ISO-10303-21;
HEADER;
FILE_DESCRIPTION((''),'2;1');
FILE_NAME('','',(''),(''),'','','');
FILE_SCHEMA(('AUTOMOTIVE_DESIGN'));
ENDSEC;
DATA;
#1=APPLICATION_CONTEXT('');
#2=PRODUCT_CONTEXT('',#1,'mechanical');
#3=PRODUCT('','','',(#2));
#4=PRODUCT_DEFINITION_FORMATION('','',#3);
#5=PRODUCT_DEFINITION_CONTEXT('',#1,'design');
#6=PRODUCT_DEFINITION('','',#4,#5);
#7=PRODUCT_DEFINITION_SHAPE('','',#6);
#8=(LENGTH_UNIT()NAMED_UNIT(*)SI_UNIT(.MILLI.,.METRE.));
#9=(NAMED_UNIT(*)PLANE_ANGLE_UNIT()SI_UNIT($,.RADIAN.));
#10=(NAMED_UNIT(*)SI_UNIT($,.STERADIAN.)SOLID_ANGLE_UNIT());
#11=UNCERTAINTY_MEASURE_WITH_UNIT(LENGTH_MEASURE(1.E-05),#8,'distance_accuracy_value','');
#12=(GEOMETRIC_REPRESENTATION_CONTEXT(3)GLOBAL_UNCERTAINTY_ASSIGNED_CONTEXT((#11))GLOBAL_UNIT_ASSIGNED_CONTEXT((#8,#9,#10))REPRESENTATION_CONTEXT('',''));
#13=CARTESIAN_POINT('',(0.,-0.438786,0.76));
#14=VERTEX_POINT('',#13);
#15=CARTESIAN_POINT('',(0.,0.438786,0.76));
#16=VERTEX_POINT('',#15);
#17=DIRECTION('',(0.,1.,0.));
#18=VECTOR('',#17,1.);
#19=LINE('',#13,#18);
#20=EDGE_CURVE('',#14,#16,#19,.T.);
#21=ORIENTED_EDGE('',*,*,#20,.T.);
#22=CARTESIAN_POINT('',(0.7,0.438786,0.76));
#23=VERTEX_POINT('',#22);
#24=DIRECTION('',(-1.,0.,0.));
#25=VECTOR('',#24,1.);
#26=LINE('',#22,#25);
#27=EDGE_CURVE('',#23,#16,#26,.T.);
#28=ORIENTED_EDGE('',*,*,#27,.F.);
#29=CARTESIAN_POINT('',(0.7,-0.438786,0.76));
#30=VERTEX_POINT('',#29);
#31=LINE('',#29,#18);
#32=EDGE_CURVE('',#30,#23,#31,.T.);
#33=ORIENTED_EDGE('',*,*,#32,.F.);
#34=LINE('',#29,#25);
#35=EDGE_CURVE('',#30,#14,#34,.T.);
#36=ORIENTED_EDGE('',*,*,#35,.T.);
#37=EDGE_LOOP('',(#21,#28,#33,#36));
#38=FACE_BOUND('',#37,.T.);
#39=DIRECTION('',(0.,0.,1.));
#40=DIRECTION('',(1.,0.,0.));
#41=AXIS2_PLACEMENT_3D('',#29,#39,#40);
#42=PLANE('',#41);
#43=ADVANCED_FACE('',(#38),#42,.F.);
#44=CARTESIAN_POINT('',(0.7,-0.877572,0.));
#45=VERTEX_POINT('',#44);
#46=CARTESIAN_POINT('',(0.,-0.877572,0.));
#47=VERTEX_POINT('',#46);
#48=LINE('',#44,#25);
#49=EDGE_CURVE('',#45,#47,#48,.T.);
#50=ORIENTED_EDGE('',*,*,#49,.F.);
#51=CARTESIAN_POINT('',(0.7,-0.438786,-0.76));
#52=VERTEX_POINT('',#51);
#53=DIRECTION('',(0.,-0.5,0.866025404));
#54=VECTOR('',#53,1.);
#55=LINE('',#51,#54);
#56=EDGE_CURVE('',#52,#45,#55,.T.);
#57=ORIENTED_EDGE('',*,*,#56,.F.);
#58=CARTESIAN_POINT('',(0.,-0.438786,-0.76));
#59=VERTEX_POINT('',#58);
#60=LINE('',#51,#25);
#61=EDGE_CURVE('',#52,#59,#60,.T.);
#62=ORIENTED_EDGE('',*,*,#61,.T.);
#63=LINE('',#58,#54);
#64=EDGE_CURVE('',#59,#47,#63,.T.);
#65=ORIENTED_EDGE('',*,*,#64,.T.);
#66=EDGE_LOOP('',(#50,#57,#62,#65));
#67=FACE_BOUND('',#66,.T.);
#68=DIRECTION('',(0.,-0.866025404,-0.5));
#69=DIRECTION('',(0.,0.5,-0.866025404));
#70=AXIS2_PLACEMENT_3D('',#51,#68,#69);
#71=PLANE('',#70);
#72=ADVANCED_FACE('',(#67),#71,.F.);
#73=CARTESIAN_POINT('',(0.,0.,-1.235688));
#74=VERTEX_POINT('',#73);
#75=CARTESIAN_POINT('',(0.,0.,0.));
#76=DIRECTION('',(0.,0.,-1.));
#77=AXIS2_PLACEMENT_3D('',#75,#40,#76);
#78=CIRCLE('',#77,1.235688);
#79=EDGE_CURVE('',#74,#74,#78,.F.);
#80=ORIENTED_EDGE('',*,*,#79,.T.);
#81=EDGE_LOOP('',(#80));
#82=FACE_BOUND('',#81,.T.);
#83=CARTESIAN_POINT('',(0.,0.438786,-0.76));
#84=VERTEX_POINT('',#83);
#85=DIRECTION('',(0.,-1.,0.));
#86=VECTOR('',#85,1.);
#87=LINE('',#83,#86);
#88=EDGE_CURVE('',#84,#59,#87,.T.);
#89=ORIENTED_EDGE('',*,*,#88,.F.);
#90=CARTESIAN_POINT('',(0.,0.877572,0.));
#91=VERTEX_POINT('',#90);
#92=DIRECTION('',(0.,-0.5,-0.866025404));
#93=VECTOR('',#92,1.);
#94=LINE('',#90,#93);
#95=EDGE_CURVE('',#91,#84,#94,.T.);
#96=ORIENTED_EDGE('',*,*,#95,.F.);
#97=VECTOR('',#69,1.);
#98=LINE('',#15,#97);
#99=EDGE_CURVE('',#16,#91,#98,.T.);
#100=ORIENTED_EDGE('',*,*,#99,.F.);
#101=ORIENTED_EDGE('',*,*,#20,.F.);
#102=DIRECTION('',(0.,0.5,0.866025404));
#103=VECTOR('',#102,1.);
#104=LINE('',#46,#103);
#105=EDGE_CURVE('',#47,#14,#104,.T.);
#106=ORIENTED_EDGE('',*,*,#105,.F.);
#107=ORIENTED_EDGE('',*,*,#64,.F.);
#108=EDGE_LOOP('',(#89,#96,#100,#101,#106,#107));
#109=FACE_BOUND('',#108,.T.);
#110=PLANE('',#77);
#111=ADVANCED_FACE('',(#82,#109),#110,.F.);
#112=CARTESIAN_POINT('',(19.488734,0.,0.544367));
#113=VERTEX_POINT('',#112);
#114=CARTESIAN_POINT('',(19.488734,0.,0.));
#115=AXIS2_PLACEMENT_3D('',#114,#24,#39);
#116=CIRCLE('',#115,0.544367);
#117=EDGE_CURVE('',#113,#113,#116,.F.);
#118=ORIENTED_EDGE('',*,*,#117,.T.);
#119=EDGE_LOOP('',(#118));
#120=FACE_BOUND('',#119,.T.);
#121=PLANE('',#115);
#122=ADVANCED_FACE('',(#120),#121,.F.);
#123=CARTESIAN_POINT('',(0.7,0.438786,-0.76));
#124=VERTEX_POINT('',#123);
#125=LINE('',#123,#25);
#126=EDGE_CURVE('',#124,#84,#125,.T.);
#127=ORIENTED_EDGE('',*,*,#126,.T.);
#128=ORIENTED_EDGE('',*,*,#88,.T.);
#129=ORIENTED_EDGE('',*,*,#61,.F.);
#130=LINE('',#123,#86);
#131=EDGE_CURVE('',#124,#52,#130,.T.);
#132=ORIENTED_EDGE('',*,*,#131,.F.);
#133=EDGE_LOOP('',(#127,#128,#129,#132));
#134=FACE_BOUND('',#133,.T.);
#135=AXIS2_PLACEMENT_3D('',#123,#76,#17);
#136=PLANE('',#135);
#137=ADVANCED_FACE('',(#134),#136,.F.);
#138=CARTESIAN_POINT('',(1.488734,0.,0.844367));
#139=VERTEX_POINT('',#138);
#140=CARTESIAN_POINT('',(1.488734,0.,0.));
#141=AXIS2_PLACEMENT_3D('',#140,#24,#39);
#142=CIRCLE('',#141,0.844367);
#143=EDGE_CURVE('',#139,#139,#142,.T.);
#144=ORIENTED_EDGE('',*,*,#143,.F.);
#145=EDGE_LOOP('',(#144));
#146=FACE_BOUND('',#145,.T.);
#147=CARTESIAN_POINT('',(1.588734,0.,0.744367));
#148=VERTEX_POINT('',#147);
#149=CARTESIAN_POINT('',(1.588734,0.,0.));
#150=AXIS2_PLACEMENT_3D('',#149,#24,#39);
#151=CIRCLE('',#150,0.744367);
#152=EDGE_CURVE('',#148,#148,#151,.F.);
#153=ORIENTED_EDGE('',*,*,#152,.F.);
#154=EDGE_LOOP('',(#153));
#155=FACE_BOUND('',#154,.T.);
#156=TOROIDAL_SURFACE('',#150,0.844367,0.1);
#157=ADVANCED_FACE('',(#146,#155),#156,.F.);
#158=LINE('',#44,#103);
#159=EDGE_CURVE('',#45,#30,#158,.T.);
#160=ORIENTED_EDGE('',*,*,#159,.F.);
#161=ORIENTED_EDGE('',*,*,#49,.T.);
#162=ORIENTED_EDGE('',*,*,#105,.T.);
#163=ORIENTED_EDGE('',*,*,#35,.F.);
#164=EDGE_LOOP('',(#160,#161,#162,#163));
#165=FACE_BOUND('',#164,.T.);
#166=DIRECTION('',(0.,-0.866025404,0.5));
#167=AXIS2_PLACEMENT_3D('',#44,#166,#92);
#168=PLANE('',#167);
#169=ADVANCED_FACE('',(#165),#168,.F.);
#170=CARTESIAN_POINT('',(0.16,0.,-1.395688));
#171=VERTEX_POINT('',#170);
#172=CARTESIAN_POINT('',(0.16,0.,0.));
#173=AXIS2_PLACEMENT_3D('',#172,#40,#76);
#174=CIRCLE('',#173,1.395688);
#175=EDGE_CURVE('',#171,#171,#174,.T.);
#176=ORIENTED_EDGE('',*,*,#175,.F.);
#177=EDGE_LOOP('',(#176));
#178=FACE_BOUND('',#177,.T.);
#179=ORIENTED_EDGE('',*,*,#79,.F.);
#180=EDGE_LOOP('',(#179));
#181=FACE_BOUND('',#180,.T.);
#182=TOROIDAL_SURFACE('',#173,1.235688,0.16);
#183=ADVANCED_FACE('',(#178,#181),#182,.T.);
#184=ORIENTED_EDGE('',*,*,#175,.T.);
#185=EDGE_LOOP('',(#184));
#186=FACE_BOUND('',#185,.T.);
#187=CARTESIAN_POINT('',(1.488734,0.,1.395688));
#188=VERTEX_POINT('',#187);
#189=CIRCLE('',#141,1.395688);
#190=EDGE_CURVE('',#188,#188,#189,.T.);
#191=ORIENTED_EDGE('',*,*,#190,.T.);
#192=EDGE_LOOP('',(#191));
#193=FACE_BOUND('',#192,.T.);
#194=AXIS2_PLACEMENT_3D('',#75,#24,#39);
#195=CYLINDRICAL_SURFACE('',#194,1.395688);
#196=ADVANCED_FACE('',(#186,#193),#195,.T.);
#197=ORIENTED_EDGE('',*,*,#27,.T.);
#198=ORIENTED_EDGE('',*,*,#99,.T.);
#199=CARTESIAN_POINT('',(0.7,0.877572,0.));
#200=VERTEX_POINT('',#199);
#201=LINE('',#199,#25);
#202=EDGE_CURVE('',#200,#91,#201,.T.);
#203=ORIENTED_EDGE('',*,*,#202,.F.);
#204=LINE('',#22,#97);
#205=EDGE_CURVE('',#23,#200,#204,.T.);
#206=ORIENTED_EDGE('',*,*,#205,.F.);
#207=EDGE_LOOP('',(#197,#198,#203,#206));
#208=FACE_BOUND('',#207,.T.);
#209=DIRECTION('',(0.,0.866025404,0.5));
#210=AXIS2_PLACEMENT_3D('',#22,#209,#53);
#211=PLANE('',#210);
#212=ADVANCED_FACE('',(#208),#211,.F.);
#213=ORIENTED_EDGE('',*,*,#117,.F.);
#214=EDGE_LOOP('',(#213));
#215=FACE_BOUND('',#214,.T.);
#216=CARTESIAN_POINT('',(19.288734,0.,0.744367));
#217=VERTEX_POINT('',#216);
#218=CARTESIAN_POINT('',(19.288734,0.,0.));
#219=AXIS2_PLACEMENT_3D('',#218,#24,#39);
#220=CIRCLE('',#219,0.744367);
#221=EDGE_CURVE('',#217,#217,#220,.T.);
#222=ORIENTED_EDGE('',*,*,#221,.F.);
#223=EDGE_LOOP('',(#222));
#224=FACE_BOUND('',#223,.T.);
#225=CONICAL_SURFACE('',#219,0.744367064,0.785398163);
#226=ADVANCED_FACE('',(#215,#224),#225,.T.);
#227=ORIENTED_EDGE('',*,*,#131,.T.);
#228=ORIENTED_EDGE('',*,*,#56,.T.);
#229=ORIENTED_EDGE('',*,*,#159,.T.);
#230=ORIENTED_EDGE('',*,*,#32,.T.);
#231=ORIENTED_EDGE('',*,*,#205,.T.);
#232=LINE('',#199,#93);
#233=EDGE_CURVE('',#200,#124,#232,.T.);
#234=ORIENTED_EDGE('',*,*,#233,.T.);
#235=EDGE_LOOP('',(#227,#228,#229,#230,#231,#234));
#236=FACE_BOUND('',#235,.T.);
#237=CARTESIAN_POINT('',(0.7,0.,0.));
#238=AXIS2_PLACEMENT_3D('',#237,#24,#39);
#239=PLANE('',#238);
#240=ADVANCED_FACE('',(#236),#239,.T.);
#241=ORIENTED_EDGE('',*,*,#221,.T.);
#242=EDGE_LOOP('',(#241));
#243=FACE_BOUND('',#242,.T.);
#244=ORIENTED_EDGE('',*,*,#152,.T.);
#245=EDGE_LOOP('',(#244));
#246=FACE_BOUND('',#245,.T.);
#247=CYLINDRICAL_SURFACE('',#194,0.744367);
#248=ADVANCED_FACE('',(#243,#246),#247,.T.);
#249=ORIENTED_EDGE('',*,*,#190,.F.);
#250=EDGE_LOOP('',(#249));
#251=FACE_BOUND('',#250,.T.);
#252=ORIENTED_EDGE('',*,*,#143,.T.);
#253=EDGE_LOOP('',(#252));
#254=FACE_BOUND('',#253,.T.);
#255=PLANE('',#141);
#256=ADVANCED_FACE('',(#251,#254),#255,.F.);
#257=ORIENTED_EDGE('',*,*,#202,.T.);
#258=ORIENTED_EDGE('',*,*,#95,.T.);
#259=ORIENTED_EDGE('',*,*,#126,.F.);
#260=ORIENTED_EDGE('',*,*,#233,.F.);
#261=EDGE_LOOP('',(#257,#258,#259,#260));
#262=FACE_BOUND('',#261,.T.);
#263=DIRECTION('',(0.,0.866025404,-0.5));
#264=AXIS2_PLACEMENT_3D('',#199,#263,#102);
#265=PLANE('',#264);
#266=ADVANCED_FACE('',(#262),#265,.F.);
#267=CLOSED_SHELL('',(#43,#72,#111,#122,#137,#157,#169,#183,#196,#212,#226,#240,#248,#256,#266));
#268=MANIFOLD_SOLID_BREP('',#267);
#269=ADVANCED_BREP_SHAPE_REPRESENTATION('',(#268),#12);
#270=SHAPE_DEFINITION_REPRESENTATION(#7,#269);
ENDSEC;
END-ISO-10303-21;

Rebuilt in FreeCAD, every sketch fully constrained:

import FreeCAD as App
import Part
import Sketcher

V = App.Vector
Q = App.Units.Quantity


def edges_at(feature, points):
    """Names of the edges that pass closest to the given points."""
    edges = feature.Shape.Edges
    near = lambda p: min(range(len(edges)), key=lambda i: edges[i].distToShape(Part.Vertex(*p))[0])
    return sorted({f"Edge{near(p) + 1}" for p in points})


def add_polygon(sketch, points):
    """Adds a closed chain of lines whose ends are joined by coincident constraints."""
    first, n = sketch.GeometryCount, len(points)
    for a, b in zip(points, points[1:] + points[:1]):
        sketch.addGeometry(Part.LineSegment(App.Vector(*a, 0), App.Vector(*b, 0)), False)
    for i in range(n):
        sketch.addConstraint(Sketcher.Constraint("Coincident", first + i, 2, first + (i + 1) % n, 1))

doc = App.newDocument("Part")
params = doc.addObject("Spreadsheet::Sheet", "Params")
for row, (alias, value) in enumerate([
    ("sketch1_width", "18 mm"),
    ("revolution_angle", "360 deg"),
    ("fillet_radius", "0.1 mm"),
    ("fillet2_radius", "0.16 mm"),
    ("chamfer_size", "0.2 mm"),
    ("pocket1_length", "0.7 mm"),
], start=1):
    params.set(f"A{row}", alias)
    params.set(f"B{row}", "=" + value)
    params.setAlias(f"B{row}", alias)

body = doc.addObject("PartDesign::Body", "Body")

# Sketch on XY plane
sketch1 = body.newObject("Sketcher::SketchObject", "Sketch")
sketch1.AttachmentSupport = (doc.getObject("XY_Plane"), [""])
sketch1.MapMode = "FlatFace"
add_polygon(sketch1, [(0, 1.4), (0, 0), (19.5, 0), (19.5, 0.7), (1.5, 0.7), (1.5, 1.4)])  # lines 0-5
sketch1.addConstraint(Sketcher.Constraint("Vertical", 0))
sketch1.addConstraint(Sketcher.Constraint("Horizontal", 1))
sketch1.addConstraint(Sketcher.Constraint("Vertical", 2))
sketch1.addConstraint(Sketcher.Constraint("Horizontal", 3))
sketch1.addConstraint(Sketcher.Constraint("Vertical", 4))
sketch1.addConstraint(Sketcher.Constraint("Horizontal", 5))
sketch1.addConstraint(Sketcher.Constraint("Coincident", 0, 2, -1, 1))
sketch1.addConstraint(Sketcher.Constraint("DistanceX", 3, 2, 3, 1, Q("18 mm")))
sketch1.addConstraint(Sketcher.Constraint("DistanceY", 0, 2, 0, 1, Q("1.395688 mm")))
sketch1.addConstraint(Sketcher.Constraint("DistanceY", 4, 1, 4, 2, Q("0.651321 mm")))
sketch1.addConstraint(Sketcher.Constraint("DistanceX", 1, 1, 1, 2, Q("19.488734 mm")))
sketch1.setExpression("Constraints[13]", "Params.sketch1_width")
revolution = body.newObject("PartDesign::Revolution", "Revolution")
revolution.Profile = sketch1
revolution.ReferenceAxis = (sketch1, ["H_Axis"])
revolution.setExpression("Angle", "Params.revolution_angle")
doc.recompute()

fillet = body.newObject("PartDesign::Fillet", "Fillet")
fillet.Base = (revolution, edges_at(revolution, [(1.489, 0, -0.744)]))
fillet.setExpression("Radius", "Params.fillet_radius")
doc.recompute()

fillet2 = body.newObject("PartDesign::Fillet", "Fillet001")
fillet2.Base = (fillet, edges_at(fillet, [(0, 0, -1.396)]))
fillet2.setExpression("Radius", "Params.fillet2_radius")
doc.recompute()

chamfer = body.newObject("PartDesign::Chamfer", "Chamfer")
chamfer.Base = (fillet2, edges_at(fillet2, [(19.489, 0, -0.744)]))
chamfer.setExpression("Size", "Params.chamfer_size")

# Sketch on YZ plane
sketch2 = body.newObject("Sketcher::SketchObject", "Sketch001")
sketch2.AttachmentSupport = (doc.getObject("YZ_Plane"), [""])
sketch2.MapMode = "FlatFace"
add_polygon(sketch2, [(0.9, 0), (0.4, -0.8), (-0.4, -0.8), (-0.9, 0), (-0.4, 0.8), (0.4, 0.8)])  # lines 0-5
sketch2.addConstraint(Sketcher.Constraint("Horizontal", 1))
sketch2.addConstraint(Sketcher.Constraint("Horizontal", 4))
sketch2.addConstraint(Sketcher.Constraint("Symmetric", 0, 2, 3, 2, -1, 1))
sketch2.addConstraint(Sketcher.Constraint("Symmetric", 2, 2, 5, 2, -1, 1))
sketch2.addConstraint(Sketcher.Constraint("PointOnObject", 2, 2, -1))
sketch2.addConstraint(Sketcher.Constraint("Parallel", 2, 5))
sketch2.addConstraint(Sketcher.Constraint("Vertical", 1, 2, 3, 2))
sketch2.addConstraint(Sketcher.Constraint("Angle", 0, Q("-120 deg")))
sketch2.addConstraint(Sketcher.Constraint("DistanceY", 0, 2, -1, 1, Q("0.76 mm")))
sketch2.addConstraint(Sketcher.Constraint("DistanceX", 1, 2, 1, 1, Q("0.877572 mm")))
pocket1 = body.newObject("PartDesign::Pocket", "Pocket")
pocket1.Profile = sketch2
pocket1.setExpression("Length", "Params.pocket1_length")
pocket1.Reversed = True

doc.recompute()
